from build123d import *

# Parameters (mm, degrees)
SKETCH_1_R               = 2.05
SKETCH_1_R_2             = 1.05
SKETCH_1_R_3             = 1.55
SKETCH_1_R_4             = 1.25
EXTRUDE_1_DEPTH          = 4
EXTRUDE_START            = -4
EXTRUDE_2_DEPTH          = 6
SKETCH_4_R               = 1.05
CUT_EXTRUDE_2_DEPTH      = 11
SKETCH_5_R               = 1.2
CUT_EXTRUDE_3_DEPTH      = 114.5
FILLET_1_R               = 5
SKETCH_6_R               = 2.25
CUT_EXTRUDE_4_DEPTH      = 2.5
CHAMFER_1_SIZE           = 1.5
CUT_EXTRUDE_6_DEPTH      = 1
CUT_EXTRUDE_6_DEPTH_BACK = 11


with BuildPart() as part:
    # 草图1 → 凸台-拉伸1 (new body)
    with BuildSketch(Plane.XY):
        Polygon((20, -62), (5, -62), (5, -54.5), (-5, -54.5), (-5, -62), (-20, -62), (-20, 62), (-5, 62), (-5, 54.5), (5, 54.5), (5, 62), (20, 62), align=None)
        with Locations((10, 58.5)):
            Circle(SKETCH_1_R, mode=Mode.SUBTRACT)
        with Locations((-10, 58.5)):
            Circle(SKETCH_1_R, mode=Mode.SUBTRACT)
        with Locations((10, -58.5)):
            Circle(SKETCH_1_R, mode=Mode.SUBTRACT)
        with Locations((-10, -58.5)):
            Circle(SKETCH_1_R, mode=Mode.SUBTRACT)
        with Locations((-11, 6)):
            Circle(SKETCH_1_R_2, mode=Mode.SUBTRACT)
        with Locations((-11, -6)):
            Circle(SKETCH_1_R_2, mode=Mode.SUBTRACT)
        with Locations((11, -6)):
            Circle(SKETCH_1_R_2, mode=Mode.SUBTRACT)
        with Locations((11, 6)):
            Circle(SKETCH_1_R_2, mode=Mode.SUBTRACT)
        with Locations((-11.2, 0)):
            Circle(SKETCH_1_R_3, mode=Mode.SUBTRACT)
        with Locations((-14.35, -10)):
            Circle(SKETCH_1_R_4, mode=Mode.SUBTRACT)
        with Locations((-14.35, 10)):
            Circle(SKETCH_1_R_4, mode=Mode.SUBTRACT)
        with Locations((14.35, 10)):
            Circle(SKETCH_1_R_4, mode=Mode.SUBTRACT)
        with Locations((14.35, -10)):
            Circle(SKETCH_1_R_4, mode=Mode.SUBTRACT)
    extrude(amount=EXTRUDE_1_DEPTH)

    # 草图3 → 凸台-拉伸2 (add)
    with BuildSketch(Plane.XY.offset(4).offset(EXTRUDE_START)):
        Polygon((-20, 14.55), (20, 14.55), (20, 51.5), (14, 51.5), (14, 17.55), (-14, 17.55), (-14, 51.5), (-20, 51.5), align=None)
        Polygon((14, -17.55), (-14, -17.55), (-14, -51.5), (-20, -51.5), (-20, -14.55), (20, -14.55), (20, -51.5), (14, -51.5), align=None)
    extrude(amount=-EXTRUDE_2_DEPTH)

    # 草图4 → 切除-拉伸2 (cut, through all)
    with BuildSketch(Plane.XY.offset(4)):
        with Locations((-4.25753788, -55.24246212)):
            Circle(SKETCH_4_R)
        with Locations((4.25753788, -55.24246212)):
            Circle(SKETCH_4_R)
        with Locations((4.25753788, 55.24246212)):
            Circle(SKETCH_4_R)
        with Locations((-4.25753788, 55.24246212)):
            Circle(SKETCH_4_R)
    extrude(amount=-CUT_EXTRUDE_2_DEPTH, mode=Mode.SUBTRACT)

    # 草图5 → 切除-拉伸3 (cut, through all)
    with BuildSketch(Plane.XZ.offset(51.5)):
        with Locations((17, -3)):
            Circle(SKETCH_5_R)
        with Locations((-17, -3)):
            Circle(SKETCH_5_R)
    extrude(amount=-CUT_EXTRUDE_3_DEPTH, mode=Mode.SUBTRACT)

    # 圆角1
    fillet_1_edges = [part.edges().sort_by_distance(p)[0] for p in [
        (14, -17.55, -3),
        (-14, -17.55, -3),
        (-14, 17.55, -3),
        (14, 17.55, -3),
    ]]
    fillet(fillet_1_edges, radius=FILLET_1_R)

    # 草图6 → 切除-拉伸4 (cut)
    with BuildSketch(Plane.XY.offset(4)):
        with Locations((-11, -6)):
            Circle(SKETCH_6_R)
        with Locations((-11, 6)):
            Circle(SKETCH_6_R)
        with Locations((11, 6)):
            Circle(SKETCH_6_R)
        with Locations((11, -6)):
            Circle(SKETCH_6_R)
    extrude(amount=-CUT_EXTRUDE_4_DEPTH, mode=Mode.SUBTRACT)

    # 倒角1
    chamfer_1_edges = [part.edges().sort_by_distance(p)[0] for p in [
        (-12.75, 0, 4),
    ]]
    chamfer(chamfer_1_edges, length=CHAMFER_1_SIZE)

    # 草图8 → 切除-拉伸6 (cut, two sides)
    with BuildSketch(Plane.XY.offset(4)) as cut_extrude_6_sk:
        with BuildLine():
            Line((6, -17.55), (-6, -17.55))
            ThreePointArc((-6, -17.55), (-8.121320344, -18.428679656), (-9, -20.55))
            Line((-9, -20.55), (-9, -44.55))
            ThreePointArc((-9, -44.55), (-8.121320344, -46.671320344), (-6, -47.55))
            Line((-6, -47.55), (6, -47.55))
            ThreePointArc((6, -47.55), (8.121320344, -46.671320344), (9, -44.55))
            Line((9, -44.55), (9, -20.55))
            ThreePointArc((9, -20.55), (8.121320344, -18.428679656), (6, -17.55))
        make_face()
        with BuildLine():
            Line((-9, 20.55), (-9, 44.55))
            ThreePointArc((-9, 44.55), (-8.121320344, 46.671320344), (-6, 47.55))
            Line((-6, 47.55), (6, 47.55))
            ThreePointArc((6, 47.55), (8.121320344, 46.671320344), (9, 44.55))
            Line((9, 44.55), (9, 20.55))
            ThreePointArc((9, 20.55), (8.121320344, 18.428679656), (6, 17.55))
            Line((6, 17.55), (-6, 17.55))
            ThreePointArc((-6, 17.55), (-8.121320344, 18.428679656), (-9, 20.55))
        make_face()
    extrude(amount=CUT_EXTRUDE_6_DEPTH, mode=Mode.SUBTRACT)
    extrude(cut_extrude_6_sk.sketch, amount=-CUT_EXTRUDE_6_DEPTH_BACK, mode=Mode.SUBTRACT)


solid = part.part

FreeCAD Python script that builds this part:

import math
import FreeCAD as App
import Part
import Sketcher

V = App.Vector
Q = App.Units.Quantity


def edges_at(feature, points):
    """Names of the edges that pass closest to the given points."""
    edges = feature.Shape.Edges
    near = lambda p: min(range(len(edges)), key=lambda i: edges[i].distToShape(Part.Vertex(*p))[0])
    return sorted({f"Edge{near(p) + 1}" for p in points})


def add_polygon(sketch, points):
    """Adds a closed chain of lines whose ends are joined by coincident constraints."""
    first, n = sketch.GeometryCount, len(points)
    for a, b in zip(points, points[1:] + points[:1]):
        sketch.addGeometry(Part.LineSegment(App.Vector(*a, 0), App.Vector(*b, 0)), False)
    for i in range(n):
        sketch.addConstraint(Sketcher.Constraint("Coincident", first + i, 2, first + (i + 1) % n, 1))

doc = App.newDocument("Part")
params = doc.addObject("Spreadsheet::Sheet", "Params")
for row, (alias, value) in enumerate([
    ("sketch1_diameter", "4.1 mm"),
    ("sketch1_diameter2", "2.5 mm"),
    ("sketch1_diameter3", "2.1 mm"),
    ("sketch1_diameter4", "3.1 mm"),
    ("sketch1_width", "15 mm"),
    ("pad1_length", "4 mm"),
    ("sketch2_width", "40 mm"),
    ("sketch2_width2", "6 mm"),
    ("sketch2_height", "36.95 mm"),
    ("pad2_length", "6 mm"),
    ("sketch3_diameter", "2.1 mm"),
    ("sketch4_diameter", "2.4 mm"),
    ("fillet_radius", "5 mm"),
    ("sketch5_diameter", "4.5 mm"),
    ("pocket3_length", "2.5 mm"),
    ("chamfer_size", "1.5 mm"),
    ("sketch6_radius", "3 mm"),
    ("sketch6_width", "12 mm"),
    ("sketch6_height", "24 mm"),
], start=1):
    params.set(f"A{row}", alias)
    params.set(f"B{row}", "=" + value)
    params.setAlias(f"B{row}", alias)

body = doc.addObject("PartDesign::Body", "Body")

# Sketch on XY plane
sketch1 = body.newObject("Sketcher::SketchObject", "Sketch")
sketch1.AttachmentSupport = (doc.getObject("XY_Plane"), [""])
sketch1.MapMode = "FlatFace"
add_polygon(sketch1, [(5, -62), (20, -62), (20, 62), (5, 62), (5, 54.5), (-5, 54.5), (-5, 62), (-20, 62), (-20, -62), (-5, -62), (-5, -54.5), (5, -54.5)])  # lines 0-11
sketch1.addGeometry(Part.Circle(V(10, -58.5, 0), V(0, 0, 1), 2), False)  # 12
sketch1.addGeometry(Part.Circle(V(14.3, -10, 0), V(0, 0, 1), 1.2), False)  # 13
sketch1.addGeometry(Part.Circle(V(11, -6, 0), V(0, 0, 1), 1.1), False)  # 14
sketch1.addGeometry(Part.Circle(V(-10, -58.5, 0), V(0, 0, 1), 2), False)  # 15
sketch1.addGeometry(Part.Circle(V(-11, -6, 0), V(0, 0, 1), 1.1), False)  # 16
sketch1.addGeometry(Part.Circle(V(-11.2, 0, 0), V(0, 0, 1), 1.6), False)  # 17
sketch1.addGeometry(Part.Circle(V(-14.3, -10, 0), V(0, 0, 1), 1.2), False)  # 18
sketch1.addGeometry(Part.Circle(V(14.3, 10, 0), V(0, 0, 1), 1.2), False)  # 19
sketch1.addGeometry(Part.Circle(V(11, 6, 0), V(0, 0, 1), 1.1), False)  # 20
sketch1.addGeometry(Part.Circle(V(10, 58.5, 0), V(0, 0, 1), 2), False)  # 21
sketch1.addGeometry(Part.Circle(V(-11, 6, 0), V(0, 0, 1), 1.1), False)  # 22
sketch1.addGeometry(Part.Circle(V(-14.3, 10, 0), V(0, 0, 1), 1.2), False)  # 23
sketch1.addGeometry(Part.Circle(V(-10, 58.5, 0), V(0, 0, 1), 2), False)  # 24
sketch1.addConstraint([
    Sketcher.Constraint("Horizontal", 0),
    Sketcher.Constraint("Vertical", 1),
    Sketcher.Constraint("Horizontal", 2),
    Sketcher.Constraint("Vertical", 3),
    Sketcher.Constraint("Horizontal", 4),
    Sketcher.Constraint("Vertical", 5),
    Sketcher.Constraint("Horizontal", 6),
    Sketcher.Constraint("Vertical", 7),
    Sketcher.Constraint("Horizontal", 8),
    Sketcher.Constraint("Vertical", 9),
    Sketcher.Constraint("Horizontal", 10),
    Sketcher.Constraint("Vertical", 11),
    Sketcher.Constraint("Equal", 12, 15),
    Sketcher.Constraint("Equal", 14, 16),
    Sketcher.Constraint("Equal", 13, 18),
    Sketcher.Constraint("Equal", 18, 19),
    Sketcher.Constraint("Equal", 16, 20),
    Sketcher.Constraint("Equal", 15, 21),
    Sketcher.Constraint("Equal", 20, 22),
    Sketcher.Constraint("Equal", 19, 23),
    Sketcher.Constraint("Equal", 21, 24),
    Sketcher.Constraint("Symmetric", 18, 3, 19, 3, -1, 1),
    Sketcher.Constraint("Symmetric", 16, 3, 20, 3, -1, 1),
    Sketcher.Constraint("Symmetric", 15, 3, 21, 3, -1, 1),
    Sketcher.Constraint("Symmetric", 14, 3, 22, 3, -1, 1),
    Sketcher.Constraint("Symmetric", 13, 3, 23, 3, -1, 1),
    Sketcher.Constraint("Symmetric", 12, 3, 24, 3, -1, 1),
    Sketcher.Constraint("Symmetric", 0, 2, 6, 2, -1, 1),
    Sketcher.Constraint("Symmetric", 2, 2, 8, 2, -1, 1),
    Sketcher.Constraint("Symmetric", 4, 2, 10, 2, -1, 1),
    Sketcher.Constraint("Symmetric", 12, 3, 15, 3, -2),
    Sketcher.Constraint("Symmetric", 14, 3, 16, 3, -2),
    Sketcher.Constraint("Symmetric", 13, 3, 18, 3, -2),
    Sketcher.Constraint("Symmetric", 2, 2, 5, 2, -2),
    Sketcher.Constraint("PointOnObject", 17, 3, -1),
    Sketcher.Constraint("Diameter", 12, Q("4.1 mm")),
    Sketcher.Constraint("Diameter", 13, Q("2.5 mm")),
    Sketcher.Constraint("Diameter", 14, Q("2.1 mm")),
    Sketcher.Constraint("Diameter", 17, Q("3.1 mm")),
    Sketcher.Constraint("DistanceX", 0, 1, 0, 2, Q("15 mm")),
    Sketcher.Constraint("DistanceX", 4, 2, 4, 1, Q("10 mm")),
    Sketcher.Constraint("DistanceY", 1, 1, 1, 2, Q("124 mm")),
    Sketcher.Constraint("DistanceY", 3, 2, 3, 1, Q("7.5 mm")),
    Sketcher.Constraint("DistanceX", -1, 1, 12, 3, Q("10 mm")),
    Sketcher.Constraint("DistanceY", 13, 3, -1, 1, Q("10 mm")),
    Sketcher.Constraint("DistanceX", -1, 1, 14, 3, Q("11 mm")),
    Sketcher.Constraint("DistanceY", 14, 3, -1, 1, Q("6 mm")),
    Sketcher.Constraint("DistanceY", 3, 2, 21, 3, Q("4 mm")),
    Sketcher.Constraint("DistanceX", 17, 3, -1, 1, Q("11.2 mm")),
    Sketcher.Constraint("DistanceX", 18, 3, 13, 3, Q("28.7 mm")),
])
sketch1.setExpression("Constraints[47]", "Params.sketch1_diameter")
sketch1.setExpression("Constraints[48]", "Params.sketch1_diameter2")
sketch1.setExpression("Constraints[49]", "Params.sketch1_diameter3")
sketch1.setExpression("Constraints[50]", "Params.sketch1_diameter4")
sketch1.setExpression("Constraints[51]", "Params.sketch1_width")
pad1 = body.newObject("PartDesign::Pad", "Pad")
pad1.Profile = sketch1
pad1.setExpression("Length", "Params.pad1_length")

# Sketch on XY plane
sketch2 = body.newObject("Sketcher::SketchObject", "Sketch001")
sketch2.AttachmentSupport = (doc.getObject("XY_Plane"), [""])
sketch2.MapMode = "FlatFace"
add_polygon(sketch2, [(-20, 15), (20, 15), (20, 52), (14, 52), (14, 18), (-14, 18), (-14, 52), (-20, 52)])  # lines 0-7
add_polygon(sketch2, [(-14, -18), (14, -18), (14, -52), (20, -52), (20, -15), (-20, -15), (-20, -52), (-14, -52)])  # lines 8-15
sketch2.addConstraint([
    Sketcher.Constraint("Horizontal", 0),
    Sketcher.Constraint("Vertical", 1),
    Sketcher.Constraint("Horizontal", 2),
    Sketcher.Constraint("Vertical", 3),
    Sketcher.Constraint("Horizontal", 4),
    Sketcher.Constraint("Vertical", 5),
    Sketcher.Constraint("Horizontal", 6),
    Sketcher.Constraint("Vertical", 7),
    Sketcher.Constraint("Horizontal", 8),
    Sketcher.Constraint("Vertical", 9),
    Sketcher.Constraint("Horizontal", 10),
    Sketcher.Constraint("Vertical", 11),
    Sketcher.Constraint("Horizontal", 12),
    Sketcher.Constraint("Vertical", 13),
    Sketcher.Constraint("Horizontal", 14),
    Sketcher.Constraint("Vertical", 15),
    Sketcher.Constraint("Symmetric", 4, 2, 8, 2, -1, 1),
    Sketcher.Constraint("Symmetric", 6, 2, 10, 2, -1, 1),
    Sketcher.Constraint("Symmetric", 0, 2, 12, 2, -1, 1),
    Sketcher.Constraint("Symmetric", 2, 2, 14, 2, -1, 1),
    Sketcher.Constraint("Symmetric", 2, 2, 5, 2, -2),
    Sketcher.Constraint("Vertical", 1, 2, 10, 2),
    Sketcher.Constraint("DistanceX", 0, 1, 0, 2, Q("40 mm")),
    Sketcher.Constraint("DistanceX", 2, 2, 2, 1, Q("6 mm")),
    Sketcher.Constraint("DistanceY", 0, 2, 3, 2, Q("3 mm")),
    Sketcher.Constraint("DistanceY", 1, 1, 1, 2, Q("36.95 mm")),
    Sketcher.Constraint("DistanceY", -1, 1, 1, 2, Q("51.5 mm")),
])
sketch2.setExpression("Constraints[38]", "Params.sketch2_width")
sketch2.setExpression("Constraints[39]", "Params.sketch2_width2")
sketch2.setExpression("Constraints[41]", "Params.sketch2_height")
pad2 = body.newObject("PartDesign::Pad", "Pad001")
pad2.Profile = sketch2
pad2.setExpression("Length", "Params.pad2_length")
pad2.Reversed = True

# Sketch on XY plane
sketch3 = body.newObject("Sketcher::SketchObject", "Sketch002")
sketch3.AttachmentSupport = (doc.getObject("XY_Plane"), [""])
sketch3.MapMode = "FlatFace"
sketch3.AttachmentOffset = App.Placement(V(0, 0, 4), App.Rotation())
sketch3.addGeometry([
    Part.Circle(V(-4.3, -55.2, 0), V(0, 0, 1), 1.1),
    Part.Circle(V(4.3, -55.2, 0), V(0, 0, 1), 1.1),
    Part.Circle(V(4.3, 55.2, 0), V(0, 0, 1), 1.1),
    Part.Circle(V(-4.3, 55.2, 0), V(0, 0, 1), 1.1),
], False)
sketch3.addConstraint([
    Sketcher.Constraint("Equal", 0, 1),
    Sketcher.Constraint("Equal", 1, 2),
    Sketcher.Constraint("Equal", 2, 3),
    Sketcher.Constraint("Symmetric", 0, 3, 2, 3, -1, 1),
    Sketcher.Constraint("Symmetric", 1, 3, 3, 3, -1, 1),
    Sketcher.Constraint("Symmetric", 0, 3, 1, 3, -2),
    Sketcher.Constraint("Diameter", 0, Q("2.1 mm")),
    Sketcher.Constraint("DistanceX", 0, 3, -1, 1, Q("4.257538 mm")),
    Sketcher.Constraint("DistanceY", 0, 3, -1, 1, Q("55.242462 mm")),
])
sketch3.setExpression("Constraints[6]", "Params.sketch3_diameter")
pocket1 = body.newObject("PartDesign::Pocket", "Pocket")
pocket1.Profile = sketch3
pocket1.Type = "ThroughAll"

# Sketch on XZ plane
sketch4 = body.newObject("Sketcher::SketchObject", "Sketch003")
sketch4.AttachmentSupport = (doc.getObject("XZ_Plane"), [""])
sketch4.MapMode = "FlatFace"
sketch4.AttachmentOffset = App.Placement(V(0, 0, 51.5), App.Rotation())
sketch4.addGeometry([
    Part.Circle(V(17, -3, 0), V(0, 0, 1), 1.2),
    Part.Circle(V(-17, -3, 0), V(0, 0, 1), 1.2),
], False)
sketch4.addConstraint([
    Sketcher.Constraint("Equal", 0, 1),
    Sketcher.Constraint("Symmetric", 0, 3, 1, 3, -2),
    Sketcher.Constraint("Diameter", 0, Q("2.4 mm")),
    Sketcher.Constraint("DistanceX", -1, 1, 0, 3, Q("17 mm")),
    Sketcher.Constraint("DistanceY", 0, 3, -1, 1, Q("3 mm")),
])
sketch4.setExpression("Constraints[2]", "Params.sketch4_diameter")
pocket2 = body.newObject("PartDesign::Pocket", "Pocket001")
pocket2.Profile = sketch4
pocket2.Type = "ThroughAll"
doc.recompute()

fillet = body.newObject("PartDesign::Fillet", "Fillet")
fillet.Base = (pocket2, edges_at(pocket2, [
    (14, -17.55, -3),
    (-14, -17.55, -3),
    (-14, 17.55, -3),
    (14, 17.55, -3),
]))
fillet.setExpression("Radius", "Params.fillet_radius")

# Sketch on XY plane
sketch5 = body.newObject("Sketcher::SketchObject", "Sketch004")
sketch5.AttachmentSupport = (doc.getObject("XY_Plane"), [""])
sketch5.MapMode = "FlatFace"
sketch5.AttachmentOffset = App.Placement(V(0, 0, 4), App.Rotation())
sketch5.addGeometry([
    Part.Circle(V(-11, -6, 0), V(0, 0, 1), 2.2),
    Part.Circle(V(-11, 6, 0), V(0, 0, 1), 2.2),
    Part.Circle(V(11, 6, 0), V(0, 0, 1), 2.2),
    Part.Circle(V(11, -6, 0), V(0, 0, 1), 2.2),
], False)
sketch5.addConstraint([
    Sketcher.Constraint("Equal", 0, 1),
    Sketcher.Constraint("Equal", 1, 2),
    Sketcher.Constraint("Equal", 2, 3),
    Sketcher.Constraint("Symmetric", 0, 3, 2, 3, -1, 1),
    Sketcher.Constraint("Symmetric", 1, 3, 3, 3, -1, 1),
    Sketcher.Constraint("Symmetric", 1, 3, 2, 3, -2),
    Sketcher.Constraint("Diameter", 0, Q("4.5 mm")),
    Sketcher.Constraint("DistanceX", 0, 3, -1, 1, Q("11 mm")),
    Sketcher.Constraint("DistanceY", 0, 3, -1, 1, Q("6 mm")),
])
sketch5.setExpression("Constraints[6]", "Params.sketch5_diameter")
pocket3 = body.newObject("PartDesign::Pocket", "Pocket002")
pocket3.Profile = sketch5
pocket3.setExpression("Length", "Params.pocket3_length")
doc.recompute()

chamfer = body.newObject("PartDesign::Chamfer", "Chamfer")
chamfer.Base = (pocket3, edges_at(pocket3, [(-12.75, 0, 4)]))
chamfer.setExpression("Size", "Params.chamfer_size")

# Sketch on XY plane
sketch6 = body.newObject("Sketcher::SketchObject", "Sketch005")
sketch6.AttachmentSupport = (doc.getObject("XY_Plane"), [""])
sketch6.MapMode = "FlatFace"
sketch6.AttachmentOffset = App.Placement(V(0, 0, 4), App.Rotation())
sketch6.addGeometry([
    Part.LineSegment(V(6, -17.6, 0), V(-6, -17.6, 0)),  # 0
    Part.ArcOfCircle(Part.Circle(V(-6, -20.5, 0), V(0, 0, 1), 3), math.radians(90), math.radians(180)),  # 1
    Part.LineSegment(V(-9, -20.6, 0), V(-9, -44.5, 0)),  # 2
    Part.ArcOfCircle(Part.Circle(V(-6, -44.6, 0), V(0, 0, 1), 3), math.radians(180), math.radians(270)),  # 3
    Part.LineSegment(V(-6, -47.5, 0), V(6, -47.5, 0)),  # 4
    Part.ArcOfCircle(Part.Circle(V(6, -44.6, 0), V(0, 0, 1), 3), math.radians(-90), math.radians(0)),  # 5
    Part.LineSegment(V(9, -44.5, 0), V(9, -20.6, 0)),  # 6
    Part.ArcOfCircle(Part.Circle(V(6, -20.5, 0), V(0, 0, 1), 3), math.radians(0), math.radians(90)),  # 7
    Part.LineSegment(V(-9, 44.5, 0), V(-9, 20.6, 0)),  # 8
    Part.ArcOfCircle(Part.Circle(V(-6, 20.5, 0), V(0, 0, 1), 3), math.radians(180), math.radians(270)),  # 9
    Part.LineSegment(V(-6, 17.6, 0), V(6, 17.6, 0)),  # 10
    Part.ArcOfCircle(Part.Circle(V(6, 20.5, 0), V(0, 0, 1), 3), math.radians(-90), math.radians(0)),  # 11
    Part.LineSegment(V(9, 20.6, 0), V(9, 44.5, 0)),  # 12
    Part.ArcOfCircle(Part.Circle(V(6, 44.6, 0), V(0, 0, 1), 3), math.radians(0), math.radians(90)),  # 13
    Part.LineSegment(V(6, 47.5, 0), V(-6, 47.5, 0)),  # 14
    Part.ArcOfCircle(Part.Circle(V(-6, 44.6, 0), V(0, 0, 1), 3), math.radians(90), math.radians(180)),  # 15
], False)
sketch6.addConstraint([
    Sketcher.Constraint("Tangent", 0, 2, 1, 1),
    Sketcher.Constraint("Tangent", 1, 2, 2, 1),
    Sketcher.Constraint("Tangent", 2, 2, 3, 1),
    Sketcher.Constraint("Tangent", 3, 2, 4, 1),
    Sketcher.Constraint("Tangent", 4, 2, 5, 1),
    Sketcher.Constraint("Tangent", 5, 2, 6, 1),
    Sketcher.Constraint("Tangent", 6, 2, 7, 1),
    Sketcher.Constraint("Tangent", 7, 2, 0, 1),
    Sketcher.Constraint("Tangent", 8, 2, 9, 1),
    Sketcher.Constraint("Tangent", 9, 2, 10, 1),
    Sketcher.Constraint("Tangent", 10, 2, 11, 1),
    Sketcher.Constraint("Tangent", 11, 2, 12, 1),
    Sketcher.Constraint("Tangent", 12, 2, 13, 1),
    Sketcher.Constraint("Tangent", 13, 2, 14, 1),
    Sketcher.Constraint("Tangent", 14, 2, 15, 1),
    Sketcher.Constraint("Tangent", 15, 2, 8, 1),
    Sketcher.Constraint("Horizontal", 0),
    Sketcher.Constraint("Vertical", 2),
    Sketcher.Constraint("Horizontal", 4),
    Sketcher.Constraint("Vertical", 6),
    Sketcher.Constraint("Vertical", 8),
    Sketcher.Constraint("Horizontal", 10),
    Sketcher.Constraint("Vertical", 12),
    Sketcher.Constraint("Horizontal", 14),
    Sketcher.Constraint("Equal", 1, 3),
    Sketcher.Constraint("Equal", 3, 5),
    Sketcher.Constraint("Equal", 5, 7),
    Sketcher.Constraint("Equal", 7, 9),
    Sketcher.Constraint("Equal", 9, 11),
    Sketcher.Constraint("Equal", 11, 13),
    Sketcher.Constraint("Equal", 13, 15),
    Sketcher.Constraint("Symmetric", 7, 3, 9, 3, -1, 1),
    Sketcher.Constraint("Symmetric", 3, 3, 13, 3, -1, 1),
    Sketcher.Constraint("Vertical", 3, 3, 9, 3),
    Sketcher.Constraint("Radius", 1, Q("3 mm")),
    Sketcher.Constraint("DistanceX", 0, 2, 0, 1, Q("12 mm")),
    Sketcher.Constraint("DistanceY", 2, 2, 2, 1, Q("24 mm")),
    Sketcher.Constraint("DistanceY", 1, 3, 9, 3, Q("41.1 mm")),
])
sketch6.setExpression("Constraints[34]", "Params.sketch6_radius")
sketch6.setExpression("Constraints[35]", "Params.sketch6_width")
sketch6.setExpression("Constraints[36]", "Params.sketch6_height")
pocket4 = body.newObject("PartDesign::Pocket", "Pocket003")
pocket4.Profile = sketch6
pocket4.Type = "ThroughAll"
pocket4.Midplane = True

doc.recompute()
